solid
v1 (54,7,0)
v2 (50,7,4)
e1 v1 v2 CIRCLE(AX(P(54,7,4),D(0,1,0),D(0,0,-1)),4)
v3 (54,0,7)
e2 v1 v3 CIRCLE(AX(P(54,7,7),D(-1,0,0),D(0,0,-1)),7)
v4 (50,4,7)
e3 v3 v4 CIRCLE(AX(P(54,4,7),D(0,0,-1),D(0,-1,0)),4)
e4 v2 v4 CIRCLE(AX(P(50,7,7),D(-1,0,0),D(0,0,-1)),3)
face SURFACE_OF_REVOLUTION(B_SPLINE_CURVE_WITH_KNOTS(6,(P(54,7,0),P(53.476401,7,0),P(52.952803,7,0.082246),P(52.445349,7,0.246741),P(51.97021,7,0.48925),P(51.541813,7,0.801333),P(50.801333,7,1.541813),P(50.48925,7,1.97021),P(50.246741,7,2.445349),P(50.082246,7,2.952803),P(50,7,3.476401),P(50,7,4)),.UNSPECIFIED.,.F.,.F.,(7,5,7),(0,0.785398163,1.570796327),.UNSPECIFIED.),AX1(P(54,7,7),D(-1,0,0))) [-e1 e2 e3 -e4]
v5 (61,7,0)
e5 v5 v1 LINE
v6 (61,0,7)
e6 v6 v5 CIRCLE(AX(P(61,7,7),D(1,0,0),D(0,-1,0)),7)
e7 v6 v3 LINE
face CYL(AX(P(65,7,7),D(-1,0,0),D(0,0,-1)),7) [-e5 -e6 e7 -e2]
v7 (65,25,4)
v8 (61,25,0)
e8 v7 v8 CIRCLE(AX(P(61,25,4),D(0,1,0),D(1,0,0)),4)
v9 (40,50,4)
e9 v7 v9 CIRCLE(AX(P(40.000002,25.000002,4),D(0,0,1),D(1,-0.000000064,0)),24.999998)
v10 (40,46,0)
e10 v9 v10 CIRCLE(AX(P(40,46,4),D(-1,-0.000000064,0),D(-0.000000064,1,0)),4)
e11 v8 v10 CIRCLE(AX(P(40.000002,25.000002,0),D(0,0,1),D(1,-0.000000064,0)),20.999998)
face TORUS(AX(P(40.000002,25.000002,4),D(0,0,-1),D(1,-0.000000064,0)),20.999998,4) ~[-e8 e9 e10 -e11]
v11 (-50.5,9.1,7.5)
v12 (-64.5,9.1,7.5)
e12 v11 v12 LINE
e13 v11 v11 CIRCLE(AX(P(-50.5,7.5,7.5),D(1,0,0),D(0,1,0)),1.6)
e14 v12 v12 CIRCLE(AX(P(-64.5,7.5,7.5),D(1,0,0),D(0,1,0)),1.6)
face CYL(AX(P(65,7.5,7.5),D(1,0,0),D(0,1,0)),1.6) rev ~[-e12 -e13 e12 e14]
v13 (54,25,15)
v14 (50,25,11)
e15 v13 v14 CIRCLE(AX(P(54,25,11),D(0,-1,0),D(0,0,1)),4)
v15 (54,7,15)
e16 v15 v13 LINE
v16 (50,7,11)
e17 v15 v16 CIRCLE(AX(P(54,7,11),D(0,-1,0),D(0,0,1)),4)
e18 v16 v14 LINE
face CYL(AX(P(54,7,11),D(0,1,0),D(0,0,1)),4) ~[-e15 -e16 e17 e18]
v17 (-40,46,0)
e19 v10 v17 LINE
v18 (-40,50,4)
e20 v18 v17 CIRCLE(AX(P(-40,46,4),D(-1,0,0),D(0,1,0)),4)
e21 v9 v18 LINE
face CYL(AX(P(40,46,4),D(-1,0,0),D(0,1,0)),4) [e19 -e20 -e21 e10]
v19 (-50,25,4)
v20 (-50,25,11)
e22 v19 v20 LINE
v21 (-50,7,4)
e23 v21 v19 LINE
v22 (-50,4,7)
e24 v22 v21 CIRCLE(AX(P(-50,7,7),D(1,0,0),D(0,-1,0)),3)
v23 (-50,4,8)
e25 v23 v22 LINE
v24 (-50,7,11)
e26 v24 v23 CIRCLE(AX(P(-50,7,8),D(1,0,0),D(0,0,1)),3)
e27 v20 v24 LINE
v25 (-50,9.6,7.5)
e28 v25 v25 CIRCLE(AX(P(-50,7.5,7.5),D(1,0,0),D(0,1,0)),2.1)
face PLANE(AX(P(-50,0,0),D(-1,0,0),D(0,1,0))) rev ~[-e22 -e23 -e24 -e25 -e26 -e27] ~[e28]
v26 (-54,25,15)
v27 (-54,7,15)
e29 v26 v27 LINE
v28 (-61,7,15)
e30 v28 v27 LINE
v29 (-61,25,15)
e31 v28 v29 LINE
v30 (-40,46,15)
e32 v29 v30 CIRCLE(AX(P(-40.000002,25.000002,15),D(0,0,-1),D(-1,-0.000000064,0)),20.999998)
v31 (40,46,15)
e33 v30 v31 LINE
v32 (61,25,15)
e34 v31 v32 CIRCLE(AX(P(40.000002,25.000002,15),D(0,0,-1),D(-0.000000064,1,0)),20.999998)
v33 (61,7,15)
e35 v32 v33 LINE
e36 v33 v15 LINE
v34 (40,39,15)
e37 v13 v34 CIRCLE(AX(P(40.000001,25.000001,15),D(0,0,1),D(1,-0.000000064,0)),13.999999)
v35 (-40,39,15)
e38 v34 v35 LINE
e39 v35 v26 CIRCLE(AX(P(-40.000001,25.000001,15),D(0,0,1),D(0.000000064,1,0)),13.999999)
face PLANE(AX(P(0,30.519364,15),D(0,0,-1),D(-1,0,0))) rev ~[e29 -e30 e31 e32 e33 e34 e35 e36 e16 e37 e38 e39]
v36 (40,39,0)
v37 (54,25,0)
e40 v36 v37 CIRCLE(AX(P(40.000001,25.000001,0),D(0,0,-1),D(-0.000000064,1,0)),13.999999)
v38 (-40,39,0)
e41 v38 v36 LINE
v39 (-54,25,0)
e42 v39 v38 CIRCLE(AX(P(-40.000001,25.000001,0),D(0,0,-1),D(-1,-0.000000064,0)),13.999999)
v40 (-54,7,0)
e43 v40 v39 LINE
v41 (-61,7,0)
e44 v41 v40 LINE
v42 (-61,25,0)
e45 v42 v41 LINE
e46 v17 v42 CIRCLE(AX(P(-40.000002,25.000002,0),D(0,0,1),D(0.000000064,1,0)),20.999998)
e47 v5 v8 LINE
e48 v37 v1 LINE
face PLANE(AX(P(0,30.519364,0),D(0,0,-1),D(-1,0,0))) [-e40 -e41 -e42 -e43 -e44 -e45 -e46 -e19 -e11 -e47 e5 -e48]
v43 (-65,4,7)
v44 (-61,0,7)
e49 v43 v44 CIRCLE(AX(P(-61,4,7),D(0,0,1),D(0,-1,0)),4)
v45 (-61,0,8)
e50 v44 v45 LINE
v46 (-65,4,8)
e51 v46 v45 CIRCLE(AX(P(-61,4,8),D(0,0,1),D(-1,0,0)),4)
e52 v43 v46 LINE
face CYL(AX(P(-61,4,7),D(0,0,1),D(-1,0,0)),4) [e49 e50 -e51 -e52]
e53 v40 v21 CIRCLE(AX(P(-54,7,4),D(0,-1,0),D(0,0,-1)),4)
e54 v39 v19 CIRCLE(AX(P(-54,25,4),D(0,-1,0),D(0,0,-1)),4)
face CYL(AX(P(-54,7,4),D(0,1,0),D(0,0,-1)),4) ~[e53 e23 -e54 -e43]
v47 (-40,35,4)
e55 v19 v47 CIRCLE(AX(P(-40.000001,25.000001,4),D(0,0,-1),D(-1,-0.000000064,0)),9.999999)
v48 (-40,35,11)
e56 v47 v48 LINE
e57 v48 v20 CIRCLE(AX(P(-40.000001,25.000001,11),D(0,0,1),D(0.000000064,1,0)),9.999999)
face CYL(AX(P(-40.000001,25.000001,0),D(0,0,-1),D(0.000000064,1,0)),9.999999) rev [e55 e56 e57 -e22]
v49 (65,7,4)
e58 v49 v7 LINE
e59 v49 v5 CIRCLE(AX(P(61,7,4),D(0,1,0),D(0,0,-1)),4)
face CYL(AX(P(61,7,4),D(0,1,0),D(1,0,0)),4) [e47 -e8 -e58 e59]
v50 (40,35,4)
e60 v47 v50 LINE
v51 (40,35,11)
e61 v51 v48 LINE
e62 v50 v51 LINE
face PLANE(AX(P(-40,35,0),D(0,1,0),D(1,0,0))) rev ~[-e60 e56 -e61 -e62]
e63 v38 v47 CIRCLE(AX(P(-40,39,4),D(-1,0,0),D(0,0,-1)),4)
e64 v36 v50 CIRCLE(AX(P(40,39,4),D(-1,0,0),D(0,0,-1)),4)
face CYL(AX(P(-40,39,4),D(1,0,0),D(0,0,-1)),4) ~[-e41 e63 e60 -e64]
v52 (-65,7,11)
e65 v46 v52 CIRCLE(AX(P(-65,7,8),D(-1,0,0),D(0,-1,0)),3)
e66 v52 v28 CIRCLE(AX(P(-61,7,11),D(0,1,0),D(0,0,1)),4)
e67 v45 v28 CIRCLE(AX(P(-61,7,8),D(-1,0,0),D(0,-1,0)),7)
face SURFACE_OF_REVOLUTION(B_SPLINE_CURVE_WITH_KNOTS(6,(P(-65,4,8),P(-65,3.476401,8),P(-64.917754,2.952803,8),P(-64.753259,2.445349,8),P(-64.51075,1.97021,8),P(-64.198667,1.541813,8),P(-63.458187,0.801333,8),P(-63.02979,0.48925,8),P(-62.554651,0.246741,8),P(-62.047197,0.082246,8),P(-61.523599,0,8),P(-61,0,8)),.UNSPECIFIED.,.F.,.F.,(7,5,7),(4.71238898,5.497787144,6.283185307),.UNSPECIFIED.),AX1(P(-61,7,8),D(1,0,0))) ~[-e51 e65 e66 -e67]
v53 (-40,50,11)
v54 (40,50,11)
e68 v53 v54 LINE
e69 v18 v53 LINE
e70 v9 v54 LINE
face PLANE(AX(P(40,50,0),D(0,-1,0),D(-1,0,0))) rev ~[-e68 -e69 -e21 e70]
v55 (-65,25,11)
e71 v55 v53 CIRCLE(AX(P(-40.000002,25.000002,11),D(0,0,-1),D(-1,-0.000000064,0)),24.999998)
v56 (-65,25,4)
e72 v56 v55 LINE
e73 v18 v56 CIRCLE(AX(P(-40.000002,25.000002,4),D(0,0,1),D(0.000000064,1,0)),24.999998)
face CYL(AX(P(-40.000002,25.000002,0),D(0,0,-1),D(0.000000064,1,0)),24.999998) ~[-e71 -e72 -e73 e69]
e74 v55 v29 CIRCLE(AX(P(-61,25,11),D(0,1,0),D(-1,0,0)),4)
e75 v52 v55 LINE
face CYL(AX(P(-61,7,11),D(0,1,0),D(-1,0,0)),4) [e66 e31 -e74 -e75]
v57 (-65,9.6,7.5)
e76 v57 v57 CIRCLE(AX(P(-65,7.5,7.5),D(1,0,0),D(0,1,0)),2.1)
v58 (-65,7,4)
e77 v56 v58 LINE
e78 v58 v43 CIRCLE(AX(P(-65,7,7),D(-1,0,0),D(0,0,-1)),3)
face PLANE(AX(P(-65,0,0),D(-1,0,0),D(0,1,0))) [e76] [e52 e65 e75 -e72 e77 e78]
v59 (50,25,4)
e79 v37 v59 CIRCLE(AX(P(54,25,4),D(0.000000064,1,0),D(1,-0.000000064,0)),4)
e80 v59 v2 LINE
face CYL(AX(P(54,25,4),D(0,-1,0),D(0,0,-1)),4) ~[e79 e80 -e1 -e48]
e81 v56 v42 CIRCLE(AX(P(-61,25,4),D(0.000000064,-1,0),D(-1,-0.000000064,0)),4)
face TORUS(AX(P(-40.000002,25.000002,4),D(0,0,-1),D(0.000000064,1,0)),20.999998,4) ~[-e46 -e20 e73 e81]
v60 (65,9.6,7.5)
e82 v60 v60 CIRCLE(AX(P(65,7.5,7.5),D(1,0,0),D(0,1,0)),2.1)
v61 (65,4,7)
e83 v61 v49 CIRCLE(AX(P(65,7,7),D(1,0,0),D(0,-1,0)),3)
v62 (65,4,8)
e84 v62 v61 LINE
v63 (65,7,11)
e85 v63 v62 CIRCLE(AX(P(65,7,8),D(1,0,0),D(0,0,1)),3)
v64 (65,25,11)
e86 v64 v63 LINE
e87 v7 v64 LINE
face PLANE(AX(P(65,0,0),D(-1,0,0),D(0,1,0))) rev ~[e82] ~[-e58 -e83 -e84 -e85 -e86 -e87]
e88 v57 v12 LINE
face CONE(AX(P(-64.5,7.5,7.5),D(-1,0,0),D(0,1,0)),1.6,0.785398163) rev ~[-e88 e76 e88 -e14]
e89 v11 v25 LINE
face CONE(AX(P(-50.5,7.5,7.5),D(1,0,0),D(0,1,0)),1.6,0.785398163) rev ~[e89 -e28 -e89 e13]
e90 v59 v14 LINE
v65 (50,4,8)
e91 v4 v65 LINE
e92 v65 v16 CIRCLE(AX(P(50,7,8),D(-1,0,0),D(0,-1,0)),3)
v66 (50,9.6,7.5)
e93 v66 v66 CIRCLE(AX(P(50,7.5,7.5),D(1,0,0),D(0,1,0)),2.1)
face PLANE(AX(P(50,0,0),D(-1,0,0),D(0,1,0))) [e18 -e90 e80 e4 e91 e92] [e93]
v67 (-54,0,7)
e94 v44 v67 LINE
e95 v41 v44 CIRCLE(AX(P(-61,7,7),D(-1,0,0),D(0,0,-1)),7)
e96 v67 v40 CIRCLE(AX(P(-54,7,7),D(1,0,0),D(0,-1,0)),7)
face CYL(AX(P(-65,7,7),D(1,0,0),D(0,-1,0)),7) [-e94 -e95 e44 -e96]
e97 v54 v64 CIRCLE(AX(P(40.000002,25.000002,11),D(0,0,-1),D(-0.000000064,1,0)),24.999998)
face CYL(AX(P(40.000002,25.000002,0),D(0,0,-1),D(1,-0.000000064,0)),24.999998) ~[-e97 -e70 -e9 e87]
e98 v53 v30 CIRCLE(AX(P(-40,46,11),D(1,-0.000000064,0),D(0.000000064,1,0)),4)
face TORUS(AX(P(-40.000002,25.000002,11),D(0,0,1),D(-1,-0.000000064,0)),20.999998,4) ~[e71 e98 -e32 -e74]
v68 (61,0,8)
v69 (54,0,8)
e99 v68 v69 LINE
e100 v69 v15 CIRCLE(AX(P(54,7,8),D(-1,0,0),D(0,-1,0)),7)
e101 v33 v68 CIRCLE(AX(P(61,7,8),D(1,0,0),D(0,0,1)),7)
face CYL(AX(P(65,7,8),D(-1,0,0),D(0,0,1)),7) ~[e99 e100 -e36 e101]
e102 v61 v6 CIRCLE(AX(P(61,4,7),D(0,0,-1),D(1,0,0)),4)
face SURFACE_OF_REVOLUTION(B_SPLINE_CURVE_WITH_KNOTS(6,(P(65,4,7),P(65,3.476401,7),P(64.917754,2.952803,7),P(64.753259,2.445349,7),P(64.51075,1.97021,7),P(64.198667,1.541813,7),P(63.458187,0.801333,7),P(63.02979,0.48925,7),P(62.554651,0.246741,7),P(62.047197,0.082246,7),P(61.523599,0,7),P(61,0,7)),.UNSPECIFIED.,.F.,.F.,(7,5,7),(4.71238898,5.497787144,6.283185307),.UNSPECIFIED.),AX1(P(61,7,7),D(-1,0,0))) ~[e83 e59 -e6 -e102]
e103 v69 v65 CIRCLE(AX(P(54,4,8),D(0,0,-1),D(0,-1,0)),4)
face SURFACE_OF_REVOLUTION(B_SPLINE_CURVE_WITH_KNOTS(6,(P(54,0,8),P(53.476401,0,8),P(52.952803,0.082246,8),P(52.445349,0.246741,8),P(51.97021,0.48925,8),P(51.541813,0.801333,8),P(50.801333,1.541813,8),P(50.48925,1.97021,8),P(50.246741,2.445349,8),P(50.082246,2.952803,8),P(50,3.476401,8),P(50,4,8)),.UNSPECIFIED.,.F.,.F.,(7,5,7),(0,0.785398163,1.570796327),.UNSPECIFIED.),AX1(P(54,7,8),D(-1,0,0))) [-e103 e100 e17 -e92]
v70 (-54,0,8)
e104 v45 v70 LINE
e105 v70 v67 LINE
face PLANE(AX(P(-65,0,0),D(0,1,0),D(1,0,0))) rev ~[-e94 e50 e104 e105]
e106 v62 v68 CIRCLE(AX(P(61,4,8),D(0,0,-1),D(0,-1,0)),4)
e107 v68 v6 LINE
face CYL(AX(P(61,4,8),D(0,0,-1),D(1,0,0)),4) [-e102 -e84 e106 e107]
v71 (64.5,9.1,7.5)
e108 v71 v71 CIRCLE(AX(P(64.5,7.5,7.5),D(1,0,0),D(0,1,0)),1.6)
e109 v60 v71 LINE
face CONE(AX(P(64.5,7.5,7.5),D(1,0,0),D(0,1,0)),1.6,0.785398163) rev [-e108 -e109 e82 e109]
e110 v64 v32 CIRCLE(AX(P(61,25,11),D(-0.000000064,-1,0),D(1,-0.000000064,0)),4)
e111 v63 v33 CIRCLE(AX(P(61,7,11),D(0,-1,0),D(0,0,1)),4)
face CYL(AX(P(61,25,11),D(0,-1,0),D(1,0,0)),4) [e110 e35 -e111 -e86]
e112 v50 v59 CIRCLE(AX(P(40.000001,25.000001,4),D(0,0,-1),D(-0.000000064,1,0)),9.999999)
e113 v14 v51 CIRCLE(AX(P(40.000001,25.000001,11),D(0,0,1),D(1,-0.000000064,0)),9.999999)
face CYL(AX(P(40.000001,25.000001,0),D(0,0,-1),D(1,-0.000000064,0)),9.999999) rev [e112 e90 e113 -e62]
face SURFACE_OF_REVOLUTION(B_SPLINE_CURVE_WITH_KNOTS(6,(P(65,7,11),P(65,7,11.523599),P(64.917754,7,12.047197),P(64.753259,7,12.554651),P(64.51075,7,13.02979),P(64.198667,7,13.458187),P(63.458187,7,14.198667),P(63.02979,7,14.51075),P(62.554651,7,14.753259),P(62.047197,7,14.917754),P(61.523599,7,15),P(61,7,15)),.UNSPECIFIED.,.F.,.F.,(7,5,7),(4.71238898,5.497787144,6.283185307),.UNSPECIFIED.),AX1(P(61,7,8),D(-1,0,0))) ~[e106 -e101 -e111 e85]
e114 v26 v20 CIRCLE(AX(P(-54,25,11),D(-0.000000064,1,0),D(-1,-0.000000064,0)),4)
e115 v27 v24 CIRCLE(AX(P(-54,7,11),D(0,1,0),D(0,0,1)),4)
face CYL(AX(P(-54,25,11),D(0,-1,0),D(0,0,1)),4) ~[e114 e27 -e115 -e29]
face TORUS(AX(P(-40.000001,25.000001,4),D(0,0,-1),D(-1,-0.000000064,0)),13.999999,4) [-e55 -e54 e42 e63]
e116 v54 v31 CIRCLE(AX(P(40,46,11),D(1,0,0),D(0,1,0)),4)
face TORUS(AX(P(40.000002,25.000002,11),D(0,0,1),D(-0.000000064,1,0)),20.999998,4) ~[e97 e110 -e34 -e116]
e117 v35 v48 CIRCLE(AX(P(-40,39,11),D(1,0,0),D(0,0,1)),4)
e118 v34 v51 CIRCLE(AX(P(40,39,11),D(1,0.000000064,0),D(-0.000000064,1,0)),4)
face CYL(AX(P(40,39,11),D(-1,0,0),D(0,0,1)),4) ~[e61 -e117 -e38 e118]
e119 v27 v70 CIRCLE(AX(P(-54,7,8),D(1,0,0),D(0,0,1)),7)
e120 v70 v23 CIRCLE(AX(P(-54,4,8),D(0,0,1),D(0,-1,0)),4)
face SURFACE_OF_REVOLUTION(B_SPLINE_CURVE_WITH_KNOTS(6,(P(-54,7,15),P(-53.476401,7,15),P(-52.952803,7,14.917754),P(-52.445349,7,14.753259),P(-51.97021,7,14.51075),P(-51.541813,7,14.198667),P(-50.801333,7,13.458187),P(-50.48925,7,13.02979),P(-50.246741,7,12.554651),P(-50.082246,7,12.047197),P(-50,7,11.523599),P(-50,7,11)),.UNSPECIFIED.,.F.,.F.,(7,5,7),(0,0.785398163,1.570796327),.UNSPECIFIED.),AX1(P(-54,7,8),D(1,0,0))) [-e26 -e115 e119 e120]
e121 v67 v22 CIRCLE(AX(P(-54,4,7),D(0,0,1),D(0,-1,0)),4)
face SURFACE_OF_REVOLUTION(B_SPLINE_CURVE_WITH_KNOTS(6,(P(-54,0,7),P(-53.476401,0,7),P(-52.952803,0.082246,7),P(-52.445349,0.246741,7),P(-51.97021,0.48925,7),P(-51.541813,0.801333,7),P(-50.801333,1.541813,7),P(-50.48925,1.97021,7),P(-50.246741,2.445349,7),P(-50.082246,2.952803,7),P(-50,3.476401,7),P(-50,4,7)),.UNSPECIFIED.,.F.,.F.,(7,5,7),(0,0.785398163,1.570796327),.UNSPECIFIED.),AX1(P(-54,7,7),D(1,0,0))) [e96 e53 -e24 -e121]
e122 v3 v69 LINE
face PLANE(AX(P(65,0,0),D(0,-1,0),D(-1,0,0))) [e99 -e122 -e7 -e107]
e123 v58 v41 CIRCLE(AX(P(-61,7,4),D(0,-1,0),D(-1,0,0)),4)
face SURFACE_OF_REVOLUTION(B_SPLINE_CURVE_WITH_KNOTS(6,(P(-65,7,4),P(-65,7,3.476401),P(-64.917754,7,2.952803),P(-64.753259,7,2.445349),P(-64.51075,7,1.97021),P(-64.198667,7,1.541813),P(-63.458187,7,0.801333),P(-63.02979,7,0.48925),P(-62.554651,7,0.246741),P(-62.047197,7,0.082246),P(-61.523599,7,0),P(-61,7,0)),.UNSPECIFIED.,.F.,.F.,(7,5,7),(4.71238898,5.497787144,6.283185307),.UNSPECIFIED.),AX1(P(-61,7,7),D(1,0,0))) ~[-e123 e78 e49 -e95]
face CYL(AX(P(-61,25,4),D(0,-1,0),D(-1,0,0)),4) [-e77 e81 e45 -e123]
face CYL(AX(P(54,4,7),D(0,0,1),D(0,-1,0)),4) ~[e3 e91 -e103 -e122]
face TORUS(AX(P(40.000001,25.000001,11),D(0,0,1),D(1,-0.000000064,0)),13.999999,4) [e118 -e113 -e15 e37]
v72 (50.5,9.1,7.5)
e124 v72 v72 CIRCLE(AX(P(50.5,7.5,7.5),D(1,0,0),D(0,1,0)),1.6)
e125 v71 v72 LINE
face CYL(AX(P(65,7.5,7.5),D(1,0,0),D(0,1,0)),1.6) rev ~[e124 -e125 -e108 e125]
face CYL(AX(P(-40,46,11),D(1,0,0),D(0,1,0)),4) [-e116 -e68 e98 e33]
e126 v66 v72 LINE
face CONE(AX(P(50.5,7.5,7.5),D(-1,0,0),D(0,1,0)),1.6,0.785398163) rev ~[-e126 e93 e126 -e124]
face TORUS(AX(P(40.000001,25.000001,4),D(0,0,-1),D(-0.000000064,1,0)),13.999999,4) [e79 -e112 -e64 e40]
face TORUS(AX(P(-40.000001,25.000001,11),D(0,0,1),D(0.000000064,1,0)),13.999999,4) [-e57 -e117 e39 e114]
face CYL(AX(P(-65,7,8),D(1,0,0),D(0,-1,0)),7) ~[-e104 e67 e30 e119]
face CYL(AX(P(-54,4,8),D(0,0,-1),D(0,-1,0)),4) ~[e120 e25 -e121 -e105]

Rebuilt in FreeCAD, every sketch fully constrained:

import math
import FreeCAD as App
import Part
import Sketcher
from FreeCAD import Vector
Q = App.Units.Quantity


def edges_at(feature, points):
    """Names of the edges that pass closest to the given points."""
    edges = feature.Shape.Edges
    near = lambda p: min(range(len(edges)), key=lambda i: edges[i].distToShape(Part.Vertex(*p))[0])
    return sorted({f"Edge{near(p) + 1}" for p in points})

doc = App.newDocument("Part")
body = doc.addObject("PartDesign::Body", "Body")

# Sketch on XY plane
sketch1 = doc.addObject("Sketcher::SketchObject", "Sketch")
body.addObject(sketch1)
sketch1.AttachmentSupport = (doc.XY_Plane, [""])
sketch1.MapMode = "FlatFace"
sketch1.addGeometry(Part.LineSegment(Vector(-65, 25, 0), Vector(-65, 0, 0)), False)
sketch1.addGeometry(Part.LineSegment(Vector(-65, 0, 0), Vector(-50, 0, 0)), False)
sketch1.addGeometry(Part.LineSegment(Vector(-50, 0, 0), Vector(-50, 25, 0)), False)
sketch1.addGeometry(Part.ArcOfCircle(Part.Circle(Vector(-40.000001, 25.000001, 0), Vector(0, 0, 1), 9.999999), math.radians(89.999996), math.radians(180.000004)), False)
sketch1.addGeometry(Part.LineSegment(Vector(-40, 35, 0), Vector(40, 35, 0)), False)
sketch1.addGeometry(Part.ArcOfCircle(Part.Circle(Vector(40.000001, 25.000001, 0), Vector(0, 0, 1), 9.999999), math.radians(-0.000004), math.radians(90.000004)), False)
sketch1.addGeometry(Part.LineSegment(Vector(50, 25, 0), Vector(50, 0, 0)), False)
sketch1.addGeometry(Part.LineSegment(Vector(50, 0, 0), Vector(65, 0, 0)), False)
sketch1.addGeometry(Part.LineSegment(Vector(65, 0, 0), Vector(65, 25, 0)), False)
sketch1.addGeometry(Part.ArcOfCircle(Part.Circle(Vector(40.000002, 25.000002, 0), Vector(0, 0, 1), 24.999998), math.radians(-0.000004), math.radians(90.000004)), False)
sketch1.addGeometry(Part.LineSegment(Vector(40, 50, 0), Vector(-40, 50, 0)), False)
sketch1.addGeometry(Part.ArcOfCircle(Part.Circle(Vector(-40.000002, 25.000002, 0), Vector(0, 0, 1), 24.999998), math.radians(89.999996), math.radians(180.000004)), False)
sketch1.addConstraint(Sketcher.Constraint("Coincident", 0, 2, 1, 1))
sketch1.addConstraint(Sketcher.Constraint("Coincident", 1, 2, 2, 1))
sketch1.addConstraint(Sketcher.Constraint("Tangent", 2, 2, 3, 2))
sketch1.addConstraint(Sketcher.Constraint("Tangent", 3, 1, 4, 1))
sketch1.addConstraint(Sketcher.Constraint("Tangent", 4, 2, 5, 2))
sketch1.addConstraint(Sketcher.Constraint("Tangent", 5, 1, 6, 1))
sketch1.addConstraint(Sketcher.Constraint("Coincident", 6, 2, 7, 1))
sketch1.addConstraint(Sketcher.Constraint("Coincident", 7, 2, 8, 1))
sketch1.addConstraint(Sketcher.Constraint("Tangent", 8, 2, 9, 1))
sketch1.addConstraint(Sketcher.Constraint("Tangent", 9, 2, 10, 1))
sketch1.addConstraint(Sketcher.Constraint("Tangent", 10, 2, 11, 1))
sketch1.addConstraint(Sketcher.Constraint("Tangent", 11, 2, 0, 1))
sketch1.addConstraint(Sketcher.Constraint("Vertical", 0))
sketch1.addConstraint(Sketcher.Constraint("Horizontal", 1))
sketch1.addConstraint(Sketcher.Constraint("Vertical", 2))
sketch1.addConstraint(Sketcher.Constraint("Horizontal", 4))
sketch1.addConstraint(Sketcher.Constraint("Vertical", 6))
sketch1.addConstraint(Sketcher.Constraint("Horizontal", 7))
sketch1.addConstraint(Sketcher.Constraint("Vertical", 8))
sketch1.addConstraint(Sketcher.Constraint("Horizontal", 10))
sketch1.addConstraint(Sketcher.Constraint("Coincident", 9, 3, 5, 3))
sketch1.addConstraint(Sketcher.Constraint("Coincident", 11, 3, 3, 3))
sketch1.addConstraint(Sketcher.Constraint("Equal", 3, 5))
sketch1.addConstraint(Sketcher.Constraint("Symmetric", 1, 2, 6, 2, -1, 1))
sketch1.addConstraint(Sketcher.Constraint("PointOnObject", 0, 2, -1))
sketch1.addConstraint(Sketcher.Constraint("Radius", 3, Q("9.999999 mm")))
sketch1.addConstraint(Sketcher.Constraint("Radius", 9, Q("24.999998 mm")))
sketch1.addConstraint(Sketcher.Constraint("DistanceX", 4, 1, 4, 2, Q("80 mm")))
sketch1.addConstraint(Sketcher.Constraint("DistanceY", 0, 2, 0, 1, Q("25 mm")))
pad1 = doc.addObject("PartDesign::Pad", "Pad")
body.addObject(pad1)
pad1.Profile = sketch1
pad1.Length = 15

# Sketch on YZ plane
sketch2 = doc.addObject("Sketcher::SketchObject", "Sketch001")
body.addObject(sketch2)
sketch2.AttachmentSupport = (doc.YZ_Plane, [""])
sketch2.MapMode = "FlatFace"
sketch2.AttachmentOffset = App.Placement(Vector(0, 0, 65), App.Rotation())
sketch2.addGeometry(Part.Circle(Vector(7.5, 7.5, 0), Vector(0, 0, 1), 1.6), False)
sketch2.addConstraint(Sketcher.Constraint("Diameter", 0, Q("3.2 mm")))
sketch2.addConstraint(Sketcher.Constraint("DistanceX", -1, 1, 0, 3, Q("7.5 mm")))
sketch2.addConstraint(Sketcher.Constraint("DistanceY", -1, 1, 0, 3, Q("7.5 mm")))
pocket1 = doc.addObject("PartDesign::Pocket", "Pocket")
body.addObject(pocket1)
pocket1.Profile = sketch2
pocket1.Type = "ThroughAll"
doc.recompute()

fillet = doc.addObject("PartDesign::Fillet", "Fillet")
body.addObject(fillet)
fillet.Base = (pocket1, edges_at(pocket1, [
    (57.5, 0, 0),
    (57.5, 0, 15),
    (-57.5, 0, 0),
    (-57.5, 0, 15),
]))
fillet.Radius = 7
doc.recompute()

fillet2 = doc.addObject("PartDesign::Fillet", "Fillet001")
body.addObject(fillet2)
fillet2.Base = (fillet, edges_at(fillet, [
    (65, 2.05, 12.95),
    (0, 35, 0),
    (65, 0, 7.5),
    (65, 2.05, 2.05),
    (50, 2.05, 2.05),
    (50, 0, 7.5),
    (50, 2.05, 12.95),
    (50, 16, 15),
    (47.071, 32.071, 15),
    (65, 16, 15),
    (65, 16, 0),
    (57.678, 42.678, 15),
    (57.678, 42.678, 0),
    (0, 35, 15),
    (0, 50, 15),
    (-47.071, 32.071, 15),
    (-47.071, 32.071, 0),
    (-57.678, 42.678, 15),
    (-65, 16, 15),
    (-50, 16, 15),
    (-50, 2.05, 12.95),
    (-65, 2.05, 12.95),
    (-65, 0, 7.5),
    (-50, 0, 7.5),
    (-65, 2.05, 2.05),
    (-50, 2.05, 2.05),
    (-50, 16, 0),
    (-65, 16, 0),
    (-57.678, 42.678, 0),
    (0, 50, 0),
    (47.071, 32.071, 0),
    (50, 16, 0),
]))
fillet2.Radius = 4
doc.recompute()

chamfer = doc.addObject("PartDesign::Chamfer", "Chamfer")
body.addObject(chamfer)
chamfer.Base = (fillet2, edges_at(fillet2, [
    (-50, 5.9, 7.5),
    (65, 5.9, 7.5),
    (50, 5.9, 7.5),
    (-65, 5.9, 7.5),
]))
chamfer.Size = 0.5

doc.recompute()
